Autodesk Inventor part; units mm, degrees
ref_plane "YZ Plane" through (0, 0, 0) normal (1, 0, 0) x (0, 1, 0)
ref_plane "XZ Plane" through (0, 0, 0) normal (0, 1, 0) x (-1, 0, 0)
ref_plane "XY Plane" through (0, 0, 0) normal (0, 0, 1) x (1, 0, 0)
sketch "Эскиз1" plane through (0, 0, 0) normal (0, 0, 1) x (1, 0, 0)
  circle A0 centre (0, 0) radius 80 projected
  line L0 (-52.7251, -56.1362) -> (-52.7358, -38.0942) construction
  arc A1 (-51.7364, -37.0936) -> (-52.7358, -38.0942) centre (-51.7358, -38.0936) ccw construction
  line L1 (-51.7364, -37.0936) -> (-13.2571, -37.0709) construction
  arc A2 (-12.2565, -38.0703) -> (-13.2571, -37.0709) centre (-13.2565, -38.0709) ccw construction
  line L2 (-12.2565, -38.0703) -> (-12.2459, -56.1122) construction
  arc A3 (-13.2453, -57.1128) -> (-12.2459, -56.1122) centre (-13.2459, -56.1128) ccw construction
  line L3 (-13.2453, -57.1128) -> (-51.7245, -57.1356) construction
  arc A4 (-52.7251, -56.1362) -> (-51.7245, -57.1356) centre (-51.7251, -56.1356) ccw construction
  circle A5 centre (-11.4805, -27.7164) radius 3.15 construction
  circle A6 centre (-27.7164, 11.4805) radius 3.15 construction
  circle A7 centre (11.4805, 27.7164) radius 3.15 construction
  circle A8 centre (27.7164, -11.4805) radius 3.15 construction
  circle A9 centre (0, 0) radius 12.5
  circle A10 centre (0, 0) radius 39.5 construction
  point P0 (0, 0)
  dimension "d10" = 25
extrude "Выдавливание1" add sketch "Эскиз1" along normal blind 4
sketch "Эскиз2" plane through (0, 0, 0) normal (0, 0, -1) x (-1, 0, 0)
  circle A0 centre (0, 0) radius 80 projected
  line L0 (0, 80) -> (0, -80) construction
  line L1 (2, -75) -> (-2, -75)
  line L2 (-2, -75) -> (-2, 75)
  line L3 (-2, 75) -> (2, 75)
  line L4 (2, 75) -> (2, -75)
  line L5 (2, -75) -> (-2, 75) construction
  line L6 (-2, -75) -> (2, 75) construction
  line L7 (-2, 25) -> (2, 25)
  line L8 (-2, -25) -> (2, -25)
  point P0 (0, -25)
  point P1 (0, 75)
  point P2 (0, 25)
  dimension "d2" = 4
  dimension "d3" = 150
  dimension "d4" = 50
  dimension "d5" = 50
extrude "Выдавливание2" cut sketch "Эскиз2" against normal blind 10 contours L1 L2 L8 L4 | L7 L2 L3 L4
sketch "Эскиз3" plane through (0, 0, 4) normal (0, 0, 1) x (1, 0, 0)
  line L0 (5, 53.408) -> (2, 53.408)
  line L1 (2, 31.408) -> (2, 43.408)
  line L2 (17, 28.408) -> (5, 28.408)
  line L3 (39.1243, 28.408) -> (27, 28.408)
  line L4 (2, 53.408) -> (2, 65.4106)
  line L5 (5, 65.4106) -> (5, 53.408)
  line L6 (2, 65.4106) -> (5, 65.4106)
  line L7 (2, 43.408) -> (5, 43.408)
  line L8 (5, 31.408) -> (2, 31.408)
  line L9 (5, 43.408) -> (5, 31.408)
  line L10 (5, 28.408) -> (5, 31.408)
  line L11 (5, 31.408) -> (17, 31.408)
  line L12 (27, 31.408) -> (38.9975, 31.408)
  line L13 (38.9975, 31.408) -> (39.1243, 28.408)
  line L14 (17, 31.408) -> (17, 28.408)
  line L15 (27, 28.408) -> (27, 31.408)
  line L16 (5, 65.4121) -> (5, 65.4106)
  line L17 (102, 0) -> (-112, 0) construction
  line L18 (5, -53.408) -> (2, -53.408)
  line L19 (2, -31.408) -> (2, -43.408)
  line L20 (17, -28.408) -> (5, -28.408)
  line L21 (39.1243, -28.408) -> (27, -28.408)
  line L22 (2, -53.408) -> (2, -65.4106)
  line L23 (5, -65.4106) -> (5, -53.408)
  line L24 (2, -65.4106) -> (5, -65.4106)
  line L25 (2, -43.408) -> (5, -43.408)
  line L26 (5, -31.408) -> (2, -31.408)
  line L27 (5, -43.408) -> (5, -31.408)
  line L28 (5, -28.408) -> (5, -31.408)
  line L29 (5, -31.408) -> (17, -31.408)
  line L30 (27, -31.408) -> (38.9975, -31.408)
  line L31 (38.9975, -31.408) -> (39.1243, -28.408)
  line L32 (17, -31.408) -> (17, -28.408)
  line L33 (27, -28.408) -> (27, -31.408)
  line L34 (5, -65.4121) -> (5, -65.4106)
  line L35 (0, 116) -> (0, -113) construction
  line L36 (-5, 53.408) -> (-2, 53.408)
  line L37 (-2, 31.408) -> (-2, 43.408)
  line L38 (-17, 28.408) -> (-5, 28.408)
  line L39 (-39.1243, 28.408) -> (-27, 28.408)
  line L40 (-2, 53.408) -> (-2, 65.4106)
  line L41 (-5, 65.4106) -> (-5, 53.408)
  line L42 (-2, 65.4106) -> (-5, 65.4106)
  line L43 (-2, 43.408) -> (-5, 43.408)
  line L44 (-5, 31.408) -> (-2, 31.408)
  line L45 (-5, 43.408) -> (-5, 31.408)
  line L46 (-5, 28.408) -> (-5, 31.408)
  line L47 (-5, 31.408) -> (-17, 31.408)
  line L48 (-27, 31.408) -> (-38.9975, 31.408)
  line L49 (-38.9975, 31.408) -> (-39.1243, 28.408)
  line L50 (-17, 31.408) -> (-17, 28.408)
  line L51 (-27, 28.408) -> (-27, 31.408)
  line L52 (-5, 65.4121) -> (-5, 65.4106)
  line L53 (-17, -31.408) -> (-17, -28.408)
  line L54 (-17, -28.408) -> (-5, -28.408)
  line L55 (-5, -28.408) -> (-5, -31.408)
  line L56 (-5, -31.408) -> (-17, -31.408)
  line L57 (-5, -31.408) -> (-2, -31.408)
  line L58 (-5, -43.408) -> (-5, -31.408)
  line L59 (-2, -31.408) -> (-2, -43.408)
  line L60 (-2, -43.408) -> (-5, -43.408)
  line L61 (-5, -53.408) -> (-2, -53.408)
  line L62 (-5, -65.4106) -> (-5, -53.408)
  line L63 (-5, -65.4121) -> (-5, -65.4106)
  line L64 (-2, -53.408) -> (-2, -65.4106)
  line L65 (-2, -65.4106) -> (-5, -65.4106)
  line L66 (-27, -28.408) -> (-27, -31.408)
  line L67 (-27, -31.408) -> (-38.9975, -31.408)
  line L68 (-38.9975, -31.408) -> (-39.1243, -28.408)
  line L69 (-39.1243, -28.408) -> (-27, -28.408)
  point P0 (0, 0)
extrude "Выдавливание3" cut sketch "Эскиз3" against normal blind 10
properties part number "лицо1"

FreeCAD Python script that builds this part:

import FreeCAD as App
import Part
import Sketcher
Q = App.Units.Quantity

doc = App.newDocument("Part")
params = doc.addObject("Spreadsheet::Sheet", "Params")
for row, (alias, value) in enumerate([
    ("sketch1_diameter", "25 mm"),
    ("sketch1_diameter2", "160 mm"),
    ("pad1_length", "4 mm"),
    ("sketch2_width", "4 mm"),
    ("sketch2_height", "50 mm"),
    ("pocket1_length", "10 mm"),
    ("sketch3_width", "3 mm"),
    ("sketch3_width2", "12 mm"),
    ("pocket2_length", "10 mm"),
], start=1):
    params.set(f"A{row}", alias)
    params.set(f"B{row}", "=" + value)
    params.setAlias(f"B{row}", alias)

body = doc.addObject("PartDesign::Body", "Body")

# Sketch on XY plane
sketch1 = body.newObject("Sketcher::SketchObject", "Sketch")
sketch1.AttachmentSupport = (doc.getObject("XY_Plane"), [""])
sketch1.MapMode = "FlatFace"
sketch1.addGeometry(Part.Circle(App.Vector(0, 0, 0), App.Vector(0, 0, 1), 80), False)
sketch1.addGeometry(Part.Circle(App.Vector(0, 0, 0), App.Vector(0, 0, 1), 12.5), False)
sketch1.addConstraint(Sketcher.Constraint("Coincident", 0, 3, -1, 1))
sketch1.addConstraint(Sketcher.Constraint("Coincident", 1, 3, -1, 1))
sketch1.addConstraint(Sketcher.Constraint("Diameter", 1, 25.0))
sketch1.addConstraint(Sketcher.Constraint("Diameter", 0, 160.0))
sketch1.setExpression("Constraints[2]", "Params.sketch1_diameter")
sketch1.setExpression("Constraints[3]", "Params.sketch1_diameter2")
pad1 = body.newObject("PartDesign::Pad", "Pad")
pad1.Profile = sketch1
pad1.setExpression("Length", "Params.pad1_length")

# Sketch on XY plane
sketch2 = body.newObject("Sketcher::SketchObject", "Sketch001")
sketch2.AttachmentSupport = (doc.getObject("XY_Plane"), [""])
sketch2.MapMode = "FlatFace"
sketch2.addGeometry(Part.LineSegment(App.Vector(2, -75, 0), App.Vector(-2, -75, 0)), False)
sketch2.addGeometry(Part.LineSegment(App.Vector(-2, -75, 0), App.Vector(-2, -25, 0)), False)
sketch2.addGeometry(Part.LineSegment(App.Vector(-2, -25, 0), App.Vector(2, -25, 0)), False)
sketch2.addGeometry(Part.LineSegment(App.Vector(2, -25, 0), App.Vector(2, -75, 0)), False)
sketch2.addGeometry(Part.LineSegment(App.Vector(2, 25, 0), App.Vector(-2, 25, 0)), False)
sketch2.addGeometry(Part.LineSegment(App.Vector(-2, 25, 0), App.Vector(-2, 75, 0)), False)
sketch2.addGeometry(Part.LineSegment(App.Vector(-2, 75, 0), App.Vector(2, 75, 0)), False)
sketch2.addGeometry(Part.LineSegment(App.Vector(2, 75, 0), App.Vector(2, 25, 0)), False)
sketch2.addConstraint(Sketcher.Constraint("Coincident", 0, 2, 1, 1))
sketch2.addConstraint(Sketcher.Constraint("Coincident", 1, 2, 2, 1))
sketch2.addConstraint(Sketcher.Constraint("Coincident", 2, 2, 3, 1))
sketch2.addConstraint(Sketcher.Constraint("Coincident", 3, 2, 0, 1))
sketch2.addConstraint(Sketcher.Constraint("Coincident", 4, 2, 5, 1))
sketch2.addConstraint(Sketcher.Constraint("Coincident", 5, 2, 6, 1))
sketch2.addConstraint(Sketcher.Constraint("Coincident", 6, 2, 7, 1))
sketch2.addConstraint(Sketcher.Constraint("Coincident", 7, 2, 4, 1))
sketch2.addConstraint(Sketcher.Constraint("Horizontal", 0))
sketch2.addConstraint(Sketcher.Constraint("Vertical", 1))
sketch2.addConstraint(Sketcher.Constraint("Horizontal", 2))
sketch2.addConstraint(Sketcher.Constraint("Vertical", 3))
sketch2.addConstraint(Sketcher.Constraint("Horizontal", 4))
sketch2.addConstraint(Sketcher.Constraint("Vertical", 5))
sketch2.addConstraint(Sketcher.Constraint("Horizontal", 6))
sketch2.addConstraint(Sketcher.Constraint("Vertical", 7))
sketch2.addConstraint(Sketcher.Constraint("Symmetric", 2, 2, 4, 2, -1, 1))
sketch2.addConstraint(Sketcher.Constraint("Symmetric", 0, 2, 6, 2, -1, 1))
sketch2.addConstraint(Sketcher.Constraint("Vertical", 1, 2, 4, 2))
sketch2.addConstraint(Sketcher.Constraint("DistanceX", 0, 2, 0, 1, 4.0))
sketch2.addConstraint(Sketcher.Constraint("DistanceY", 1, 1, 1, 2, 50.0))
sketch2.addConstraint(Sketcher.Constraint("DistanceY", 1, 2, 4, 2, 50.0))
sketch2.setExpression("Constraints[19]", "Params.sketch2_width")
sketch2.setExpression("Constraints[20]", "Params.sketch2_height")
pocket1 = body.newObject("PartDesign::Pocket", "Pocket")
pocket1.Profile = sketch2
pocket1.setExpression("Length", "Params.pocket1_length")
pocket1.Reversed = True

# Sketch on XY plane
sketch3 = body.newObject("Sketcher::SketchObject", "Sketch002")
sketch3.AttachmentSupport = (doc.getObject("XY_Plane"), [""])
sketch3.MapMode = "FlatFace"
sketch3.AttachmentOffset = App.Placement(App.Vector(0, 0, 4), App.Rotation())
sketch3.addGeometry(Part.LineSegment(App.Vector(2, 53.408, 0), App.Vector(5, 53.408, 0)), False)
sketch3.addGeometry(Part.LineSegment(App.Vector(5, 53.408, 0), App.Vector(5, 65.4106, 0)), False)
sketch3.addGeometry(Part.LineSegment(App.Vector(5, 65.4106, 0), App.Vector(2, 65.4106, 0)), False)
sketch3.addGeometry(Part.LineSegment(App.Vector(2, 65.4106, 0), App.Vector(2, 53.408, 0)), False)
sketch3.addGeometry(Part.LineSegment(App.Vector(17, 31.408, 0), App.Vector(5, 31.408, 0)), False)
sketch3.addGeometry(Part.LineSegment(App.Vector(5, 31.408, 0), App.Vector(5, 28.408, 0)), False)
sketch3.addGeometry(Part.LineSegment(App.Vector(5, 28.408, 0), App.Vector(17, 28.408, 0)), False)
sketch3.addGeometry(Part.LineSegment(App.Vector(17, 28.408, 0), App.Vector(17, 31.408, 0)), False)
sketch3.addGeometry(Part.LineSegment(App.Vector(2, 43.408, 0), App.Vector(2, 31.408, 0)), False)
sketch3.addGeometry(Part.LineSegment(App.Vector(2, 31.408, 0), App.Vector(5, 31.408, 0)), False)
sketch3.addGeometry(Part.LineSegment(App.Vector(5, 31.408, 0), App.Vector(5, 43.408, 0)), False)
sketch3.addGeometry(Part.LineSegment(App.Vector(5, 43.408, 0), App.Vector(2, 43.408, 0)), False)
sketch3.addGeometry(Part.LineSegment(App.Vector(27, 28.408, 0), App.Vector(39.1243, 28.408, 0)), False)
sketch3.addGeometry(Part.LineSegment(App.Vector(39.1243, 28.408, 0), App.Vector(38.9975, 31.408, 0)), False)
sketch3.addGeometry(Part.LineSegment(App.Vector(38.9975, 31.408, 0), App.Vector(27, 31.408, 0)), False)
sketch3.addGeometry(Part.LineSegment(App.Vector(27, 31.408, 0), App.Vector(27, 28.408, 0)), False)
sketch3.addGeometry(Part.LineSegment(App.Vector(5, -65.4106, 0), App.Vector(5, -53.408, 0)), False)
sketch3.addGeometry(Part.LineSegment(App.Vector(5, -53.408, 0), App.Vector(2, -53.408, 0)), False)
sketch3.addGeometry(Part.LineSegment(App.Vector(2, -53.408, 0), App.Vector(2, -65.4106, 0)), False)
sketch3.addGeometry(Part.LineSegment(App.Vector(2, -65.4106, 0), App.Vector(5, -65.4106, 0)), False)
sketch3.addGeometry(Part.LineSegment(App.Vector(5, -31.408, 0), App.Vector(2, -31.408, 0)), False)
sketch3.addGeometry(Part.LineSegment(App.Vector(2, -31.408, 0), App.Vector(2, -43.408, 0)), False)
sketch3.addGeometry(Part.LineSegment(App.Vector(2, -43.408, 0), App.Vector(5, -43.408, 0)), False)
sketch3.addGeometry(Part.LineSegment(App.Vector(5, -43.408, 0), App.Vector(5, -31.408, 0)), False)
sketch3.addGeometry(Part.LineSegment(App.Vector(5, -28.408, 0), App.Vector(5, -31.408, 0)), False)
sketch3.addGeometry(Part.LineSegment(App.Vector(5, -31.408, 0), App.Vector(17, -31.408, 0)), False)
sketch3.addGeometry(Part.LineSegment(App.Vector(17, -31.408, 0), App.Vector(17, -28.408, 0)), False)
sketch3.addGeometry(Part.LineSegment(App.Vector(17, -28.408, 0), App.Vector(5, -28.408, 0)), False)
sketch3.addGeometry(Part.LineSegment(App.Vector(38.9975, -31.408, 0), App.Vector(39.1243, -28.408, 0)), False)
sketch3.addGeometry(Part.LineSegment(App.Vector(39.1243, -28.408, 0), App.Vector(27, -28.408, 0)), False)
sketch3.addGeometry(Part.LineSegment(App.Vector(27, -28.408, 0), App.Vector(27, -31.408, 0)), False)
sketch3.addGeometry(Part.LineSegment(App.Vector(27, -31.408, 0), App.Vector(38.9975, -31.408, 0)), False)
sketch3.addGeometry(Part.LineSegment(App.Vector(-5, 65.4106, 0), App.Vector(-5, 53.408, 0)), False)
sketch3.addGeometry(Part.LineSegment(App.Vector(-5, 53.408, 0), App.Vector(-2, 53.408, 0)), False)
sketch3.addGeometry(Part.LineSegment(App.Vector(-2, 53.408, 0), App.Vector(-2, 65.4106, 0)), False)
sketch3.addGeometry(Part.LineSegment(App.Vector(-2, 65.4106, 0), App.Vector(-5, 65.4106, 0)), False)
sketch3.addGeometry(Part.LineSegment(App.Vector(-5, 31.408, 0), App.Vector(-2, 31.408, 0)), False)
sketch3.addGeometry(Part.LineSegment(App.Vector(-2, 31.408, 0), App.Vector(-2, 43.408, 0)), False)
sketch3.addGeometry(Part.LineSegment(App.Vector(-2, 43.408, 0), App.Vector(-5, 43.408, 0)), False)
sketch3.addGeometry(Part.LineSegment(App.Vector(-5, 43.408, 0), App.Vector(-5, 31.408, 0)), False)
sketch3.addGeometry(Part.LineSegment(App.Vector(-5, 28.408, 0), App.Vector(-5, 31.408, 0)), False)
sketch3.addGeometry(Part.LineSegment(App.Vector(-5, 31.408, 0), App.Vector(-17, 31.408, 0)), False)
sketch3.addGeometry(Part.LineSegment(App.Vector(-17, 31.408, 0), App.Vector(-17, 28.408, 0)), False)
sketch3.addGeometry(Part.LineSegment(App.Vector(-17, 28.408, 0), App.Vector(-5, 28.408, 0)), False)
sketch3.addGeometry(Part.LineSegment(App.Vector(-38.9975, 31.408, 0), App.Vector(-39.1243, 28.408, 0)), False)
sketch3.addGeometry(Part.LineSegment(App.Vector(-39.1243, 28.408, 0), App.Vector(-27, 28.408, 0)), False)
sketch3.addGeometry(Part.LineSegment(App.Vector(-27, 28.408, 0), App.Vector(-27, 31.408, 0)), False)
sketch3.addGeometry(Part.LineSegment(App.Vector(-27, 31.408, 0), App.Vector(-38.9975, 31.408, 0)), False)
sketch3.addGeometry(Part.LineSegment(App.Vector(-2, -31.408, 0), App.Vector(-5, -31.408, 0)), False)
sketch3.addGeometry(Part.LineSegment(App.Vector(-5, -31.408, 0), App.Vector(-5, -43.408, 0)), False)
sketch3.addGeometry(Part.LineSegment(App.Vector(-5, -43.408, 0), App.Vector(-2, -43.408, 0)), False)
sketch3.addGeometry(Part.LineSegment(App.Vector(-2, -43.408, 0), App.Vector(-2, -31.408, 0)), False)
sketch3.addGeometry(Part.LineSegment(App.Vector(-17, -28.408, 0), App.Vector(-17, -31.408, 0)), False)
sketch3.addGeometry(Part.LineSegment(App.Vector(-17, -31.408, 0), App.Vector(-5, -31.408, 0)), False)
sketch3.addGeometry(Part.LineSegment(App.Vector(-5, -31.408, 0), App.Vector(-5, -28.408, 0)), False)
sketch3.addGeometry(Part.LineSegment(App.Vector(-5, -28.408, 0), App.Vector(-17, -28.408, 0)), False)
sketch3.addGeometry(Part.LineSegment(App.Vector(-2, -53.408, 0), App.Vector(-5, -53.408, 0)), False)
sketch3.addGeometry(Part.LineSegment(App.Vector(-5, -53.408, 0), App.Vector(-5, -65.4106, 0)), False)
sketch3.addGeometry(Part.LineSegment(App.Vector(-5, -65.4106, 0), App.Vector(-2, -65.4106, 0)), False)
sketch3.addGeometry(Part.LineSegment(App.Vector(-2, -65.4106, 0), App.Vector(-2, -53.408, 0)), False)
sketch3.addGeometry(Part.LineSegment(App.Vector(-27, -31.408, 0), App.Vector(-27, -28.408, 0)), False)
sketch3.addGeometry(Part.LineSegment(App.Vector(-27, -28.408, 0), App.Vector(-39.1243, -28.408, 0)), False)
sketch3.addGeometry(Part.LineSegment(App.Vector(-39.1243, -28.408, 0), App.Vector(-38.9975, -31.408, 0)), False)
sketch3.addGeometry(Part.LineSegment(App.Vector(-38.9975, -31.408, 0), App.Vector(-27, -31.408, 0)), False)
sketch3.addConstraint(Sketcher.Constraint("Coincident", 0, 2, 1, 1))
sketch3.addConstraint(Sketcher.Constraint("Coincident", 1, 2, 2, 1))
sketch3.addConstraint(Sketcher.Constraint("Coincident", 2, 2, 3, 1))
sketch3.addConstraint(Sketcher.Constraint("Coincident", 3, 2, 0, 1))
sketch3.addConstraint(Sketcher.Constraint("Coincident", 4, 2, 5, 1))
sketch3.addConstraint(Sketcher.Constraint("Coincident", 5, 2, 6, 1))
sketch3.addConstraint(Sketcher.Constraint("Coincident", 6, 2, 7, 1))
sketch3.addConstraint(Sketcher.Constraint("Coincident", 7, 2, 4, 1))
sketch3.addConstraint(Sketcher.Constraint("Coincident", 8, 2, 9, 1))
sketch3.addConstraint(Sketcher.Constraint("Coincident", 9, 2, 10, 1))
sketch3.addConstraint(Sketcher.Constraint("Coincident", 10, 2, 11, 1))
sketch3.addConstraint(Sketcher.Constraint("Coincident", 11, 2, 8, 1))
sketch3.addConstraint(Sketcher.Constraint("Coincident", 12, 2, 13, 1))
sketch3.addConstraint(Sketcher.Constraint("Coincident", 13, 2, 14, 1))
sketch3.addConstraint(Sketcher.Constraint("Coincident", 14, 2, 15, 1))
sketch3.addConstraint(Sketcher.Constraint("Coincident", 15, 2, 12, 1))
sketch3.addConstraint(Sketcher.Constraint("Coincident", 16, 2, 17, 1))
sketch3.addConstraint(Sketcher.Constraint("Coincident", 17, 2, 18, 1))
sketch3.addConstraint(Sketcher.Constraint("Coincident", 18, 2, 19, 1))
sketch3.addConstraint(Sketcher.Constraint("Coincident", 19, 2, 16, 1))
sketch3.addConstraint(Sketcher.Constraint("Coincident", 20, 2, 21, 1))
sketch3.addConstraint(Sketcher.Constraint("Coincident", 21, 2, 22, 1))
sketch3.addConstraint(Sketcher.Constraint("Coincident", 22, 2, 23, 1))
sketch3.addConstraint(Sketcher.Constraint("Coincident", 23, 2, 20, 1))
sketch3.addConstraint(Sketcher.Constraint("Coincident", 24, 2, 25, 1))
sketch3.addConstraint(Sketcher.Constraint("Coincident", 25, 2, 26, 1))
sketch3.addConstraint(Sketcher.Constraint("Coincident", 26, 2, 27, 1))
sketch3.addConstraint(Sketcher.Constraint("Coincident", 27, 2, 24, 1))
sketch3.addConstraint(Sketcher.Constraint("Coincident", 28, 2, 29, 1))
sketch3.addConstraint(Sketcher.Constraint("Coincident", 29, 2, 30, 1))
sketch3.addConstraint(Sketcher.Constraint("Coincident", 30, 2, 31, 1))
sketch3.addConstraint(Sketcher.Constraint("Coincident", 31, 2, 28, 1))
sketch3.addConstraint(Sketcher.Constraint("Coincident", 32, 2, 33, 1))
sketch3.addConstraint(Sketcher.Constraint("Coincident", 33, 2, 34, 1))
sketch3.addConstraint(Sketcher.Constraint("Coincident", 34, 2, 35, 1))
sketch3.addConstraint(Sketcher.Constraint("Coincident", 35, 2, 32, 1))
sketch3.addConstraint(Sketcher.Constraint("Coincident", 36, 2, 37, 1))
sketch3.addConstraint(Sketcher.Constraint("Coincident", 37, 2, 38, 1))
sketch3.addConstraint(Sketcher.Constraint("Coincident", 38, 2, 39, 1))
sketch3.addConstraint(Sketcher.Constraint("Coincident", 39, 2, 36, 1))
sketch3.addConstraint(Sketcher.Constraint("Coincident", 40, 2, 41, 1))
sketch3.addConstraint(Sketcher.Constraint("Coincident", 41, 2, 42, 1))
sketch3.addConstraint(Sketcher.Constraint("Coincident", 42, 2, 43, 1))
sketch3.addConstraint(Sketcher.Constraint("Coincident", 43, 2, 40, 1))
sketch3.addConstraint(Sketcher.Constraint("Coincident", 44, 2, 45, 1))
sketch3.addConstraint(Sketcher.Constraint("Coincident", 45, 2, 46, 1))
sketch3.addConstraint(Sketcher.Constraint("Coincident", 46, 2, 47, 1))
sketch3.addConstraint(Sketcher.Constraint("Coincident", 47, 2, 44, 1))
sketch3.addConstraint(Sketcher.Constraint("Coincident", 48, 2, 49, 1))
sketch3.addConstraint(Sketcher.Constraint("Coincident", 49, 2, 50, 1))
sketch3.addConstraint(Sketcher.Constraint("Coincident", 50, 2, 51, 1))
sketch3.addConstraint(Sketcher.Constraint("Coincident", 51, 2, 48, 1))
sketch3.addConstraint(Sketcher.Constraint("Coincident", 52, 2, 53, 1))
sketch3.addConstraint(Sketcher.Constraint("Coincident", 53, 2, 54, 1))
sketch3.addConstraint(Sketcher.Constraint("Coincident", 54, 2, 55, 1))
sketch3.addConstraint(Sketcher.Constraint("Coincident", 55, 2, 52, 1))
sketch3.addConstraint(Sketcher.Constraint("Coincident", 56, 2, 57, 1))
sketch3.addConstraint(Sketcher.Constraint("Coincident", 57, 2, 58, 1))
sketch3.addConstraint(Sketcher.Constraint("Coincident", 58, 2, 59, 1))
sketch3.addConstraint(Sketcher.Constraint("Coincident", 59, 2, 56, 1))
sketch3.addConstraint(Sketcher.Constraint("Coincident", 60, 2, 61, 1))
sketch3.addConstraint(Sketcher.Constraint("Coincident", 61, 2, 62, 1))
sketch3.addConstraint(Sketcher.Constraint("Coincident", 62, 2, 63, 1))
sketch3.addConstraint(Sketcher.Constraint("Coincident", 63, 2, 60, 1))
sketch3.addConstraint(Sketcher.Constraint("Horizontal", 0))
sketch3.addConstraint(Sketcher.Constraint("Vertical", 1))
sketch3.addConstraint(Sketcher.Constraint("Horizontal", 2))
sketch3.addConstraint(Sketcher.Constraint("Vertical", 3))
sketch3.addConstraint(Sketcher.Constraint("Horizontal", 4))
sketch3.addConstraint(Sketcher.Constraint("Vertical", 5))
sketch3.addConstraint(Sketcher.Constraint("Horizontal", 6))
sketch3.addConstraint(Sketcher.Constraint("Vertical", 7))
sketch3.addConstraint(Sketcher.Constraint("Vertical", 8))
sketch3.addConstraint(Sketcher.Constraint("Horizontal", 9))
sketch3.addConstraint(Sketcher.Constraint("Vertical", 10))
sketch3.addConstraint(Sketcher.Constraint("Horizontal", 11))
sketch3.addConstraint(Sketcher.Constraint("Horizontal", 12))
sketch3.addConstraint(Sketcher.Constraint("Horizontal", 14))
sketch3.addConstraint(Sketcher.Constraint("Vertical", 15))
sketch3.addConstraint(Sketcher.Constraint("Vertical", 16))
sketch3.addConstraint(Sketcher.Constraint("Horizontal", 17))
sketch3.addConstraint(Sketcher.Constraint("Vertical", 18))
sketch3.addConstraint(Sketcher.Constraint("Horizontal", 19))
sketch3.addConstraint(Sketcher.Constraint("Horizontal", 20))
sketch3.addConstraint(Sketcher.Constraint("Vertical", 21))
sketch3.addConstraint(Sketcher.Constraint("Horizontal", 22))
sketch3.addConstraint(Sketcher.Constraint("Vertical", 23))
sketch3.addConstraint(Sketcher.Constraint("Vertical", 24))
sketch3.addConstraint(Sketcher.Constraint("Horizontal", 25))
sketch3.addConstraint(Sketcher.Constraint("Vertical", 26))
sketch3.addConstraint(Sketcher.Constraint("Horizontal", 27))
sketch3.addConstraint(Sketcher.Constraint("Horizontal", 29))
sketch3.addConstraint(Sketcher.Constraint("Vertical", 30))
sketch3.addConstraint(Sketcher.Constraint("Horizontal", 31))
sketch3.addConstraint(Sketcher.Constraint("Vertical", 32))
sketch3.addConstraint(Sketcher.Constraint("Horizontal", 33))
sketch3.addConstraint(Sketcher.Constraint("Vertical", 34))
sketch3.addConstraint(Sketcher.Constraint("Horizontal", 35))
sketch3.addConstraint(Sketcher.Constraint("Horizontal", 36))
sketch3.addConstraint(Sketcher.Constraint("Vertical", 37))
sketch3.addConstraint(Sketcher.Constraint("Horizontal", 38))
sketch3.addConstraint(Sketcher.Constraint("Vertical", 39))
sketch3.addConstraint(Sketcher.Constraint("Vertical", 40))
sketch3.addConstraint(Sketcher.Constraint("Horizontal", 41))
sketch3.addConstraint(Sketcher.Constraint("Vertical", 42))
sketch3.addConstraint(Sketcher.Constraint("Horizontal", 43))
sketch3.addConstraint(Sketcher.Constraint("Horizontal", 45))
sketch3.addConstraint(Sketcher.Constraint("Vertical", 46))
sketch3.addConstraint(Sketcher.Constraint("Horizontal", 47))
sketch3.addConstraint(Sketcher.Constraint("Horizontal", 48))
sketch3.addConstraint(Sketcher.Constraint("Vertical", 49))
sketch3.addConstraint(Sketcher.Constraint("Horizontal", 50))
sketch3.addConstraint(Sketcher.Constraint("Vertical", 51))
sketch3.addConstraint(Sketcher.Constraint("Vertical", 52))
sketch3.addConstraint(Sketcher.Constraint("Horizontal", 53))
sketch3.addConstraint(Sketcher.Constraint("Vertical", 54))
sketch3.addConstraint(Sketcher.Constraint("Horizontal", 55))
sketch3.addConstraint(Sketcher.Constraint("Horizontal", 56))
sketch3.addConstraint(Sketcher.Constraint("Vertical", 57))
sketch3.addConstraint(Sketcher.Constraint("Horizontal", 58))
sketch3.addConstraint(Sketcher.Constraint("Vertical", 59))
sketch3.addConstraint(Sketcher.Constraint("Vertical", 60))
sketch3.addConstraint(Sketcher.Constraint("Horizontal", 61))
sketch3.addConstraint(Sketcher.Constraint("Horizontal", 63))
sketch3.addConstraint(Sketcher.Constraint("Coincident", 9, 2, 4, 2))
sketch3.addConstraint(Sketcher.Constraint("Coincident", 24, 2, 23, 2))
sketch3.addConstraint(Sketcher.Constraint("Coincident", 40, 2, 39, 2))
sketch3.addConstraint(Sketcher.Constraint("Coincident", 53, 2, 48, 2))
sketch3.addConstraint(Sketcher.Constraint("Symmetric", 16, 2, 32, 2, -1, 1))
sketch3.addConstraint(Sketcher.Constraint("Symmetric", 18, 2, 34, 2, -1, 1))
sketch3.addConstraint(Sketcher.Constraint("Symmetric", 20, 2, 36, 2, -1, 1))
sketch3.addConstraint(Sketcher.Constraint("Symmetric", 22, 2, 38, 2, -1, 1))
sketch3.addConstraint(Sketcher.Constraint("Symmetric", 26, 2, 42, 2, -1, 1))
sketch3.addConstraint(Sketcher.Constraint("Symmetric", 28, 2, 44, 2, -1, 1))
sketch3.addConstraint(Sketcher.Constraint("Symmetric", 30, 2, 46, 2, -1, 1))
sketch3.addConstraint(Sketcher.Constraint("Symmetric", 4, 2, 48, 2, -1, 1))
sketch3.addConstraint(Sketcher.Constraint("Symmetric", 11, 2, 50, 2, -1, 1))
sketch3.addConstraint(Sketcher.Constraint("Symmetric", 6, 2, 55, 2, -1, 1))
sketch3.addConstraint(Sketcher.Constraint("Symmetric", 0, 2, 56, 2, -1, 1))
sketch3.addConstraint(Sketcher.Constraint("Symmetric", 2, 2, 58, 2, -1, 1))
sketch3.addConstraint(Sketcher.Constraint("Symmetric", 15, 2, 60, 2, -1, 1))
sketch3.addConstraint(Sketcher.Constraint("Symmetric", 13, 2, 62, 2, -1, 1))
sketch3.addConstraint(Sketcher.Constraint("Symmetric", 0, 2, 32, 2, -2))
sketch3.addConstraint(Sketcher.Constraint("Symmetric", 2, 2, 34, 2, -2))
sketch3.addConstraint(Sketcher.Constraint("Symmetric", 8, 2, 36, 2, -2))
sketch3.addConstraint(Sketcher.Constraint("Symmetric", 10, 2, 38, 2, -2))
sketch3.addConstraint(Sketcher.Constraint("Symmetric", 6, 2, 42, 2, -2))
sketch3.addConstraint(Sketcher.Constraint("Symmetric", 12, 2, 44, 2, -2))
sketch3.addConstraint(Sketcher.Constraint("Symmetric", 14, 2, 46, 2, -2))
sketch3.addConstraint(Sketcher.Constraint("Parallel", 28, 44))
sketch3.addConstraint(Sketcher.Constraint("Parallel", 13, 62))
sketch3.addConstraint(Sketcher.Constraint("Horizontal", 6, 2, 12, 2))
sketch3.addConstraint(Sketcher.Constraint("Horizontal", 9, 2, 13, 2))
sketch3.addConstraint(Sketcher.Constraint("Vertical", 1, 2, 4, 2))
sketch3.addConstraint(Sketcher.Constraint("Vertical", 3, 2, 8, 2))
sketch3.addConstraint(Sketcher.Constraint("Vertical", 13, 2, 31, 2))
sketch3.addConstraint(Sketcher.Constraint("Equal", 58, 5))
sketch3.addConstraint(Sketcher.Constraint("Equal", 55, 8))
sketch3.addConstraint(Sketcher.Constraint("DistanceX", 0, 1, 0, 2, 3.0))
sketch3.addConstraint(Sketcher.Constraint("DistanceX", 4, 2, 4, 1, 12.0))
sketch3.addConstraint(Sketcher.Constraint("DistanceX", -1, 1, 0, 2, 5.0))
sketch3.addConstraint(Sketcher.Constraint("DistanceX", -1, 1, 14, 2, 27.0))
sketch3.addConstraint(Sketcher.Constraint("Angle", 13, Q("92.4203 deg")))
sketch3.addConstraint(Sketcher.Constraint("DistanceX", 12, 1, 12, 2, 12.1243))
sketch3.addConstraint(Sketcher.Constraint("DistanceY", 1, 1, 1, 2, 12.0026))
sketch3.addConstraint(Sketcher.Constraint("DistanceY", -1, 1, 0, 2, 53.408))
sketch3.addConstraint(Sketcher.Constraint("DistanceY", -1, 1, 4, 2, 31.408))
sketch3.setExpression("Constraints[158]", "Params.sketch3_width")
sketch3.setExpression("Constraints[159]", "Params.sketch3_width2")
pocket2 = body.newObject("PartDesign::Pocket", "Pocket001")
pocket2.Profile = sketch3
pocket2.setExpression("Length", "Params.pocket2_length")

doc.recompute()
